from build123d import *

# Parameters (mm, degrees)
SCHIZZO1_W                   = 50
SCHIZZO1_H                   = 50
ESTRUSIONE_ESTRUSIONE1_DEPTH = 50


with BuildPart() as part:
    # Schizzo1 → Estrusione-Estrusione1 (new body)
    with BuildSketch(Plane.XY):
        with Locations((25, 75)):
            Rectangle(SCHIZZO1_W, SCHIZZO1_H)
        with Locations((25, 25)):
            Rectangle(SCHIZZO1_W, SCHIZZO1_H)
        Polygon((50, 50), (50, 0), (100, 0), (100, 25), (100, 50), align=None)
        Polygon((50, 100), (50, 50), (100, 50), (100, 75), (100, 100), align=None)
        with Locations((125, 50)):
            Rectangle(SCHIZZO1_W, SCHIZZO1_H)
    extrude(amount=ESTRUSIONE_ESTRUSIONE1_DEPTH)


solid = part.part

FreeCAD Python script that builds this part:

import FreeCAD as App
import Part
import Sketcher

V = App.Vector
Q = App.Units.Quantity

doc = App.newDocument("Part")
body = doc.addObject("PartDesign::Body", "Body")

sketch1 = doc.addObject("Sketcher::SketchObject", "Sketch")
body.addObject(sketch1)
sketch1.AttachmentSupport = (doc.XY_Plane, [""])
sketch1.MapMode = "FlatFace"
sketch1.addGeometry(Part.LineSegment(V(0, 100, 0), V(0, 0, 0)), False)
sketch1.addGeometry(Part.LineSegment(V(0, 0, 0), V(100, 0, 0)), False)
sketch1.addGeometry(Part.LineSegment(V(100, 0, 0), V(100, 25, 0)), False)
sketch1.addGeometry(Part.LineSegment(V(100, 25, 0), V(150, 25, 0)), False)
sketch1.addGeometry(Part.LineSegment(V(150, 25, 0), V(150, 75, 0)), False)
sketch1.addGeometry(Part.LineSegment(V(150, 75, 0), V(100, 75, 0)), False)
sketch1.addGeometry(Part.LineSegment(V(100, 75, 0), V(100, 100, 0)), False)
sketch1.addGeometry(Part.LineSegment(V(100, 100, 0), V(0, 100, 0)), False)
sketch1.addConstraint(Sketcher.Constraint("Coincident", 0, 2, 1, 1))
sketch1.addConstraint(Sketcher.Constraint("Coincident", 1, 2, 2, 1))
sketch1.addConstraint(Sketcher.Constraint("Coincident", 2, 2, 3, 1))
sketch1.addConstraint(Sketcher.Constraint("Coincident", 3, 2, 4, 1))
sketch1.addConstraint(Sketcher.Constraint("Coincident", 4, 2, 5, 1))
sketch1.addConstraint(Sketcher.Constraint("Coincident", 5, 2, 6, 1))
sketch1.addConstraint(Sketcher.Constraint("Coincident", 6, 2, 7, 1))
sketch1.addConstraint(Sketcher.Constraint("Coincident", 7, 2, 0, 1))
sketch1.addConstraint(Sketcher.Constraint("Vertical", 0))
sketch1.addConstraint(Sketcher.Constraint("Horizontal", 1))
sketch1.addConstraint(Sketcher.Constraint("Vertical", 2))
sketch1.addConstraint(Sketcher.Constraint("Horizontal", 3))
sketch1.addConstraint(Sketcher.Constraint("Vertical", 4))
sketch1.addConstraint(Sketcher.Constraint("Horizontal", 5))
sketch1.addConstraint(Sketcher.Constraint("Vertical", 6))
sketch1.addConstraint(Sketcher.Constraint("Horizontal", 7))
sketch1.addConstraint(Sketcher.Constraint("Coincident", 0, 2, -1, 1))
sketch1.addConstraint(Sketcher.Constraint("Vertical", 2, 2, 5, 2))
sketch1.addConstraint(Sketcher.Constraint("Equal", 7, 0))
sketch1.addConstraint(Sketcher.Constraint("Equal", 5, 4))
sketch1.addConstraint(Sketcher.Constraint("Equal", 2, 6))
sketch1.addConstraint(Sketcher.Constraint("DistanceX", 1, 1, 1, 2, Q("100 mm")))
sketch1.addConstraint(Sketcher.Constraint("DistanceX", 3, 1, 3, 2, Q("50 mm")))
pad1 = doc.addObject("PartDesign::Pad", "Pad")
body.addObject(pad1)
pad1.Profile = sketch1
pad1.Length = 50

doc.recompute()
